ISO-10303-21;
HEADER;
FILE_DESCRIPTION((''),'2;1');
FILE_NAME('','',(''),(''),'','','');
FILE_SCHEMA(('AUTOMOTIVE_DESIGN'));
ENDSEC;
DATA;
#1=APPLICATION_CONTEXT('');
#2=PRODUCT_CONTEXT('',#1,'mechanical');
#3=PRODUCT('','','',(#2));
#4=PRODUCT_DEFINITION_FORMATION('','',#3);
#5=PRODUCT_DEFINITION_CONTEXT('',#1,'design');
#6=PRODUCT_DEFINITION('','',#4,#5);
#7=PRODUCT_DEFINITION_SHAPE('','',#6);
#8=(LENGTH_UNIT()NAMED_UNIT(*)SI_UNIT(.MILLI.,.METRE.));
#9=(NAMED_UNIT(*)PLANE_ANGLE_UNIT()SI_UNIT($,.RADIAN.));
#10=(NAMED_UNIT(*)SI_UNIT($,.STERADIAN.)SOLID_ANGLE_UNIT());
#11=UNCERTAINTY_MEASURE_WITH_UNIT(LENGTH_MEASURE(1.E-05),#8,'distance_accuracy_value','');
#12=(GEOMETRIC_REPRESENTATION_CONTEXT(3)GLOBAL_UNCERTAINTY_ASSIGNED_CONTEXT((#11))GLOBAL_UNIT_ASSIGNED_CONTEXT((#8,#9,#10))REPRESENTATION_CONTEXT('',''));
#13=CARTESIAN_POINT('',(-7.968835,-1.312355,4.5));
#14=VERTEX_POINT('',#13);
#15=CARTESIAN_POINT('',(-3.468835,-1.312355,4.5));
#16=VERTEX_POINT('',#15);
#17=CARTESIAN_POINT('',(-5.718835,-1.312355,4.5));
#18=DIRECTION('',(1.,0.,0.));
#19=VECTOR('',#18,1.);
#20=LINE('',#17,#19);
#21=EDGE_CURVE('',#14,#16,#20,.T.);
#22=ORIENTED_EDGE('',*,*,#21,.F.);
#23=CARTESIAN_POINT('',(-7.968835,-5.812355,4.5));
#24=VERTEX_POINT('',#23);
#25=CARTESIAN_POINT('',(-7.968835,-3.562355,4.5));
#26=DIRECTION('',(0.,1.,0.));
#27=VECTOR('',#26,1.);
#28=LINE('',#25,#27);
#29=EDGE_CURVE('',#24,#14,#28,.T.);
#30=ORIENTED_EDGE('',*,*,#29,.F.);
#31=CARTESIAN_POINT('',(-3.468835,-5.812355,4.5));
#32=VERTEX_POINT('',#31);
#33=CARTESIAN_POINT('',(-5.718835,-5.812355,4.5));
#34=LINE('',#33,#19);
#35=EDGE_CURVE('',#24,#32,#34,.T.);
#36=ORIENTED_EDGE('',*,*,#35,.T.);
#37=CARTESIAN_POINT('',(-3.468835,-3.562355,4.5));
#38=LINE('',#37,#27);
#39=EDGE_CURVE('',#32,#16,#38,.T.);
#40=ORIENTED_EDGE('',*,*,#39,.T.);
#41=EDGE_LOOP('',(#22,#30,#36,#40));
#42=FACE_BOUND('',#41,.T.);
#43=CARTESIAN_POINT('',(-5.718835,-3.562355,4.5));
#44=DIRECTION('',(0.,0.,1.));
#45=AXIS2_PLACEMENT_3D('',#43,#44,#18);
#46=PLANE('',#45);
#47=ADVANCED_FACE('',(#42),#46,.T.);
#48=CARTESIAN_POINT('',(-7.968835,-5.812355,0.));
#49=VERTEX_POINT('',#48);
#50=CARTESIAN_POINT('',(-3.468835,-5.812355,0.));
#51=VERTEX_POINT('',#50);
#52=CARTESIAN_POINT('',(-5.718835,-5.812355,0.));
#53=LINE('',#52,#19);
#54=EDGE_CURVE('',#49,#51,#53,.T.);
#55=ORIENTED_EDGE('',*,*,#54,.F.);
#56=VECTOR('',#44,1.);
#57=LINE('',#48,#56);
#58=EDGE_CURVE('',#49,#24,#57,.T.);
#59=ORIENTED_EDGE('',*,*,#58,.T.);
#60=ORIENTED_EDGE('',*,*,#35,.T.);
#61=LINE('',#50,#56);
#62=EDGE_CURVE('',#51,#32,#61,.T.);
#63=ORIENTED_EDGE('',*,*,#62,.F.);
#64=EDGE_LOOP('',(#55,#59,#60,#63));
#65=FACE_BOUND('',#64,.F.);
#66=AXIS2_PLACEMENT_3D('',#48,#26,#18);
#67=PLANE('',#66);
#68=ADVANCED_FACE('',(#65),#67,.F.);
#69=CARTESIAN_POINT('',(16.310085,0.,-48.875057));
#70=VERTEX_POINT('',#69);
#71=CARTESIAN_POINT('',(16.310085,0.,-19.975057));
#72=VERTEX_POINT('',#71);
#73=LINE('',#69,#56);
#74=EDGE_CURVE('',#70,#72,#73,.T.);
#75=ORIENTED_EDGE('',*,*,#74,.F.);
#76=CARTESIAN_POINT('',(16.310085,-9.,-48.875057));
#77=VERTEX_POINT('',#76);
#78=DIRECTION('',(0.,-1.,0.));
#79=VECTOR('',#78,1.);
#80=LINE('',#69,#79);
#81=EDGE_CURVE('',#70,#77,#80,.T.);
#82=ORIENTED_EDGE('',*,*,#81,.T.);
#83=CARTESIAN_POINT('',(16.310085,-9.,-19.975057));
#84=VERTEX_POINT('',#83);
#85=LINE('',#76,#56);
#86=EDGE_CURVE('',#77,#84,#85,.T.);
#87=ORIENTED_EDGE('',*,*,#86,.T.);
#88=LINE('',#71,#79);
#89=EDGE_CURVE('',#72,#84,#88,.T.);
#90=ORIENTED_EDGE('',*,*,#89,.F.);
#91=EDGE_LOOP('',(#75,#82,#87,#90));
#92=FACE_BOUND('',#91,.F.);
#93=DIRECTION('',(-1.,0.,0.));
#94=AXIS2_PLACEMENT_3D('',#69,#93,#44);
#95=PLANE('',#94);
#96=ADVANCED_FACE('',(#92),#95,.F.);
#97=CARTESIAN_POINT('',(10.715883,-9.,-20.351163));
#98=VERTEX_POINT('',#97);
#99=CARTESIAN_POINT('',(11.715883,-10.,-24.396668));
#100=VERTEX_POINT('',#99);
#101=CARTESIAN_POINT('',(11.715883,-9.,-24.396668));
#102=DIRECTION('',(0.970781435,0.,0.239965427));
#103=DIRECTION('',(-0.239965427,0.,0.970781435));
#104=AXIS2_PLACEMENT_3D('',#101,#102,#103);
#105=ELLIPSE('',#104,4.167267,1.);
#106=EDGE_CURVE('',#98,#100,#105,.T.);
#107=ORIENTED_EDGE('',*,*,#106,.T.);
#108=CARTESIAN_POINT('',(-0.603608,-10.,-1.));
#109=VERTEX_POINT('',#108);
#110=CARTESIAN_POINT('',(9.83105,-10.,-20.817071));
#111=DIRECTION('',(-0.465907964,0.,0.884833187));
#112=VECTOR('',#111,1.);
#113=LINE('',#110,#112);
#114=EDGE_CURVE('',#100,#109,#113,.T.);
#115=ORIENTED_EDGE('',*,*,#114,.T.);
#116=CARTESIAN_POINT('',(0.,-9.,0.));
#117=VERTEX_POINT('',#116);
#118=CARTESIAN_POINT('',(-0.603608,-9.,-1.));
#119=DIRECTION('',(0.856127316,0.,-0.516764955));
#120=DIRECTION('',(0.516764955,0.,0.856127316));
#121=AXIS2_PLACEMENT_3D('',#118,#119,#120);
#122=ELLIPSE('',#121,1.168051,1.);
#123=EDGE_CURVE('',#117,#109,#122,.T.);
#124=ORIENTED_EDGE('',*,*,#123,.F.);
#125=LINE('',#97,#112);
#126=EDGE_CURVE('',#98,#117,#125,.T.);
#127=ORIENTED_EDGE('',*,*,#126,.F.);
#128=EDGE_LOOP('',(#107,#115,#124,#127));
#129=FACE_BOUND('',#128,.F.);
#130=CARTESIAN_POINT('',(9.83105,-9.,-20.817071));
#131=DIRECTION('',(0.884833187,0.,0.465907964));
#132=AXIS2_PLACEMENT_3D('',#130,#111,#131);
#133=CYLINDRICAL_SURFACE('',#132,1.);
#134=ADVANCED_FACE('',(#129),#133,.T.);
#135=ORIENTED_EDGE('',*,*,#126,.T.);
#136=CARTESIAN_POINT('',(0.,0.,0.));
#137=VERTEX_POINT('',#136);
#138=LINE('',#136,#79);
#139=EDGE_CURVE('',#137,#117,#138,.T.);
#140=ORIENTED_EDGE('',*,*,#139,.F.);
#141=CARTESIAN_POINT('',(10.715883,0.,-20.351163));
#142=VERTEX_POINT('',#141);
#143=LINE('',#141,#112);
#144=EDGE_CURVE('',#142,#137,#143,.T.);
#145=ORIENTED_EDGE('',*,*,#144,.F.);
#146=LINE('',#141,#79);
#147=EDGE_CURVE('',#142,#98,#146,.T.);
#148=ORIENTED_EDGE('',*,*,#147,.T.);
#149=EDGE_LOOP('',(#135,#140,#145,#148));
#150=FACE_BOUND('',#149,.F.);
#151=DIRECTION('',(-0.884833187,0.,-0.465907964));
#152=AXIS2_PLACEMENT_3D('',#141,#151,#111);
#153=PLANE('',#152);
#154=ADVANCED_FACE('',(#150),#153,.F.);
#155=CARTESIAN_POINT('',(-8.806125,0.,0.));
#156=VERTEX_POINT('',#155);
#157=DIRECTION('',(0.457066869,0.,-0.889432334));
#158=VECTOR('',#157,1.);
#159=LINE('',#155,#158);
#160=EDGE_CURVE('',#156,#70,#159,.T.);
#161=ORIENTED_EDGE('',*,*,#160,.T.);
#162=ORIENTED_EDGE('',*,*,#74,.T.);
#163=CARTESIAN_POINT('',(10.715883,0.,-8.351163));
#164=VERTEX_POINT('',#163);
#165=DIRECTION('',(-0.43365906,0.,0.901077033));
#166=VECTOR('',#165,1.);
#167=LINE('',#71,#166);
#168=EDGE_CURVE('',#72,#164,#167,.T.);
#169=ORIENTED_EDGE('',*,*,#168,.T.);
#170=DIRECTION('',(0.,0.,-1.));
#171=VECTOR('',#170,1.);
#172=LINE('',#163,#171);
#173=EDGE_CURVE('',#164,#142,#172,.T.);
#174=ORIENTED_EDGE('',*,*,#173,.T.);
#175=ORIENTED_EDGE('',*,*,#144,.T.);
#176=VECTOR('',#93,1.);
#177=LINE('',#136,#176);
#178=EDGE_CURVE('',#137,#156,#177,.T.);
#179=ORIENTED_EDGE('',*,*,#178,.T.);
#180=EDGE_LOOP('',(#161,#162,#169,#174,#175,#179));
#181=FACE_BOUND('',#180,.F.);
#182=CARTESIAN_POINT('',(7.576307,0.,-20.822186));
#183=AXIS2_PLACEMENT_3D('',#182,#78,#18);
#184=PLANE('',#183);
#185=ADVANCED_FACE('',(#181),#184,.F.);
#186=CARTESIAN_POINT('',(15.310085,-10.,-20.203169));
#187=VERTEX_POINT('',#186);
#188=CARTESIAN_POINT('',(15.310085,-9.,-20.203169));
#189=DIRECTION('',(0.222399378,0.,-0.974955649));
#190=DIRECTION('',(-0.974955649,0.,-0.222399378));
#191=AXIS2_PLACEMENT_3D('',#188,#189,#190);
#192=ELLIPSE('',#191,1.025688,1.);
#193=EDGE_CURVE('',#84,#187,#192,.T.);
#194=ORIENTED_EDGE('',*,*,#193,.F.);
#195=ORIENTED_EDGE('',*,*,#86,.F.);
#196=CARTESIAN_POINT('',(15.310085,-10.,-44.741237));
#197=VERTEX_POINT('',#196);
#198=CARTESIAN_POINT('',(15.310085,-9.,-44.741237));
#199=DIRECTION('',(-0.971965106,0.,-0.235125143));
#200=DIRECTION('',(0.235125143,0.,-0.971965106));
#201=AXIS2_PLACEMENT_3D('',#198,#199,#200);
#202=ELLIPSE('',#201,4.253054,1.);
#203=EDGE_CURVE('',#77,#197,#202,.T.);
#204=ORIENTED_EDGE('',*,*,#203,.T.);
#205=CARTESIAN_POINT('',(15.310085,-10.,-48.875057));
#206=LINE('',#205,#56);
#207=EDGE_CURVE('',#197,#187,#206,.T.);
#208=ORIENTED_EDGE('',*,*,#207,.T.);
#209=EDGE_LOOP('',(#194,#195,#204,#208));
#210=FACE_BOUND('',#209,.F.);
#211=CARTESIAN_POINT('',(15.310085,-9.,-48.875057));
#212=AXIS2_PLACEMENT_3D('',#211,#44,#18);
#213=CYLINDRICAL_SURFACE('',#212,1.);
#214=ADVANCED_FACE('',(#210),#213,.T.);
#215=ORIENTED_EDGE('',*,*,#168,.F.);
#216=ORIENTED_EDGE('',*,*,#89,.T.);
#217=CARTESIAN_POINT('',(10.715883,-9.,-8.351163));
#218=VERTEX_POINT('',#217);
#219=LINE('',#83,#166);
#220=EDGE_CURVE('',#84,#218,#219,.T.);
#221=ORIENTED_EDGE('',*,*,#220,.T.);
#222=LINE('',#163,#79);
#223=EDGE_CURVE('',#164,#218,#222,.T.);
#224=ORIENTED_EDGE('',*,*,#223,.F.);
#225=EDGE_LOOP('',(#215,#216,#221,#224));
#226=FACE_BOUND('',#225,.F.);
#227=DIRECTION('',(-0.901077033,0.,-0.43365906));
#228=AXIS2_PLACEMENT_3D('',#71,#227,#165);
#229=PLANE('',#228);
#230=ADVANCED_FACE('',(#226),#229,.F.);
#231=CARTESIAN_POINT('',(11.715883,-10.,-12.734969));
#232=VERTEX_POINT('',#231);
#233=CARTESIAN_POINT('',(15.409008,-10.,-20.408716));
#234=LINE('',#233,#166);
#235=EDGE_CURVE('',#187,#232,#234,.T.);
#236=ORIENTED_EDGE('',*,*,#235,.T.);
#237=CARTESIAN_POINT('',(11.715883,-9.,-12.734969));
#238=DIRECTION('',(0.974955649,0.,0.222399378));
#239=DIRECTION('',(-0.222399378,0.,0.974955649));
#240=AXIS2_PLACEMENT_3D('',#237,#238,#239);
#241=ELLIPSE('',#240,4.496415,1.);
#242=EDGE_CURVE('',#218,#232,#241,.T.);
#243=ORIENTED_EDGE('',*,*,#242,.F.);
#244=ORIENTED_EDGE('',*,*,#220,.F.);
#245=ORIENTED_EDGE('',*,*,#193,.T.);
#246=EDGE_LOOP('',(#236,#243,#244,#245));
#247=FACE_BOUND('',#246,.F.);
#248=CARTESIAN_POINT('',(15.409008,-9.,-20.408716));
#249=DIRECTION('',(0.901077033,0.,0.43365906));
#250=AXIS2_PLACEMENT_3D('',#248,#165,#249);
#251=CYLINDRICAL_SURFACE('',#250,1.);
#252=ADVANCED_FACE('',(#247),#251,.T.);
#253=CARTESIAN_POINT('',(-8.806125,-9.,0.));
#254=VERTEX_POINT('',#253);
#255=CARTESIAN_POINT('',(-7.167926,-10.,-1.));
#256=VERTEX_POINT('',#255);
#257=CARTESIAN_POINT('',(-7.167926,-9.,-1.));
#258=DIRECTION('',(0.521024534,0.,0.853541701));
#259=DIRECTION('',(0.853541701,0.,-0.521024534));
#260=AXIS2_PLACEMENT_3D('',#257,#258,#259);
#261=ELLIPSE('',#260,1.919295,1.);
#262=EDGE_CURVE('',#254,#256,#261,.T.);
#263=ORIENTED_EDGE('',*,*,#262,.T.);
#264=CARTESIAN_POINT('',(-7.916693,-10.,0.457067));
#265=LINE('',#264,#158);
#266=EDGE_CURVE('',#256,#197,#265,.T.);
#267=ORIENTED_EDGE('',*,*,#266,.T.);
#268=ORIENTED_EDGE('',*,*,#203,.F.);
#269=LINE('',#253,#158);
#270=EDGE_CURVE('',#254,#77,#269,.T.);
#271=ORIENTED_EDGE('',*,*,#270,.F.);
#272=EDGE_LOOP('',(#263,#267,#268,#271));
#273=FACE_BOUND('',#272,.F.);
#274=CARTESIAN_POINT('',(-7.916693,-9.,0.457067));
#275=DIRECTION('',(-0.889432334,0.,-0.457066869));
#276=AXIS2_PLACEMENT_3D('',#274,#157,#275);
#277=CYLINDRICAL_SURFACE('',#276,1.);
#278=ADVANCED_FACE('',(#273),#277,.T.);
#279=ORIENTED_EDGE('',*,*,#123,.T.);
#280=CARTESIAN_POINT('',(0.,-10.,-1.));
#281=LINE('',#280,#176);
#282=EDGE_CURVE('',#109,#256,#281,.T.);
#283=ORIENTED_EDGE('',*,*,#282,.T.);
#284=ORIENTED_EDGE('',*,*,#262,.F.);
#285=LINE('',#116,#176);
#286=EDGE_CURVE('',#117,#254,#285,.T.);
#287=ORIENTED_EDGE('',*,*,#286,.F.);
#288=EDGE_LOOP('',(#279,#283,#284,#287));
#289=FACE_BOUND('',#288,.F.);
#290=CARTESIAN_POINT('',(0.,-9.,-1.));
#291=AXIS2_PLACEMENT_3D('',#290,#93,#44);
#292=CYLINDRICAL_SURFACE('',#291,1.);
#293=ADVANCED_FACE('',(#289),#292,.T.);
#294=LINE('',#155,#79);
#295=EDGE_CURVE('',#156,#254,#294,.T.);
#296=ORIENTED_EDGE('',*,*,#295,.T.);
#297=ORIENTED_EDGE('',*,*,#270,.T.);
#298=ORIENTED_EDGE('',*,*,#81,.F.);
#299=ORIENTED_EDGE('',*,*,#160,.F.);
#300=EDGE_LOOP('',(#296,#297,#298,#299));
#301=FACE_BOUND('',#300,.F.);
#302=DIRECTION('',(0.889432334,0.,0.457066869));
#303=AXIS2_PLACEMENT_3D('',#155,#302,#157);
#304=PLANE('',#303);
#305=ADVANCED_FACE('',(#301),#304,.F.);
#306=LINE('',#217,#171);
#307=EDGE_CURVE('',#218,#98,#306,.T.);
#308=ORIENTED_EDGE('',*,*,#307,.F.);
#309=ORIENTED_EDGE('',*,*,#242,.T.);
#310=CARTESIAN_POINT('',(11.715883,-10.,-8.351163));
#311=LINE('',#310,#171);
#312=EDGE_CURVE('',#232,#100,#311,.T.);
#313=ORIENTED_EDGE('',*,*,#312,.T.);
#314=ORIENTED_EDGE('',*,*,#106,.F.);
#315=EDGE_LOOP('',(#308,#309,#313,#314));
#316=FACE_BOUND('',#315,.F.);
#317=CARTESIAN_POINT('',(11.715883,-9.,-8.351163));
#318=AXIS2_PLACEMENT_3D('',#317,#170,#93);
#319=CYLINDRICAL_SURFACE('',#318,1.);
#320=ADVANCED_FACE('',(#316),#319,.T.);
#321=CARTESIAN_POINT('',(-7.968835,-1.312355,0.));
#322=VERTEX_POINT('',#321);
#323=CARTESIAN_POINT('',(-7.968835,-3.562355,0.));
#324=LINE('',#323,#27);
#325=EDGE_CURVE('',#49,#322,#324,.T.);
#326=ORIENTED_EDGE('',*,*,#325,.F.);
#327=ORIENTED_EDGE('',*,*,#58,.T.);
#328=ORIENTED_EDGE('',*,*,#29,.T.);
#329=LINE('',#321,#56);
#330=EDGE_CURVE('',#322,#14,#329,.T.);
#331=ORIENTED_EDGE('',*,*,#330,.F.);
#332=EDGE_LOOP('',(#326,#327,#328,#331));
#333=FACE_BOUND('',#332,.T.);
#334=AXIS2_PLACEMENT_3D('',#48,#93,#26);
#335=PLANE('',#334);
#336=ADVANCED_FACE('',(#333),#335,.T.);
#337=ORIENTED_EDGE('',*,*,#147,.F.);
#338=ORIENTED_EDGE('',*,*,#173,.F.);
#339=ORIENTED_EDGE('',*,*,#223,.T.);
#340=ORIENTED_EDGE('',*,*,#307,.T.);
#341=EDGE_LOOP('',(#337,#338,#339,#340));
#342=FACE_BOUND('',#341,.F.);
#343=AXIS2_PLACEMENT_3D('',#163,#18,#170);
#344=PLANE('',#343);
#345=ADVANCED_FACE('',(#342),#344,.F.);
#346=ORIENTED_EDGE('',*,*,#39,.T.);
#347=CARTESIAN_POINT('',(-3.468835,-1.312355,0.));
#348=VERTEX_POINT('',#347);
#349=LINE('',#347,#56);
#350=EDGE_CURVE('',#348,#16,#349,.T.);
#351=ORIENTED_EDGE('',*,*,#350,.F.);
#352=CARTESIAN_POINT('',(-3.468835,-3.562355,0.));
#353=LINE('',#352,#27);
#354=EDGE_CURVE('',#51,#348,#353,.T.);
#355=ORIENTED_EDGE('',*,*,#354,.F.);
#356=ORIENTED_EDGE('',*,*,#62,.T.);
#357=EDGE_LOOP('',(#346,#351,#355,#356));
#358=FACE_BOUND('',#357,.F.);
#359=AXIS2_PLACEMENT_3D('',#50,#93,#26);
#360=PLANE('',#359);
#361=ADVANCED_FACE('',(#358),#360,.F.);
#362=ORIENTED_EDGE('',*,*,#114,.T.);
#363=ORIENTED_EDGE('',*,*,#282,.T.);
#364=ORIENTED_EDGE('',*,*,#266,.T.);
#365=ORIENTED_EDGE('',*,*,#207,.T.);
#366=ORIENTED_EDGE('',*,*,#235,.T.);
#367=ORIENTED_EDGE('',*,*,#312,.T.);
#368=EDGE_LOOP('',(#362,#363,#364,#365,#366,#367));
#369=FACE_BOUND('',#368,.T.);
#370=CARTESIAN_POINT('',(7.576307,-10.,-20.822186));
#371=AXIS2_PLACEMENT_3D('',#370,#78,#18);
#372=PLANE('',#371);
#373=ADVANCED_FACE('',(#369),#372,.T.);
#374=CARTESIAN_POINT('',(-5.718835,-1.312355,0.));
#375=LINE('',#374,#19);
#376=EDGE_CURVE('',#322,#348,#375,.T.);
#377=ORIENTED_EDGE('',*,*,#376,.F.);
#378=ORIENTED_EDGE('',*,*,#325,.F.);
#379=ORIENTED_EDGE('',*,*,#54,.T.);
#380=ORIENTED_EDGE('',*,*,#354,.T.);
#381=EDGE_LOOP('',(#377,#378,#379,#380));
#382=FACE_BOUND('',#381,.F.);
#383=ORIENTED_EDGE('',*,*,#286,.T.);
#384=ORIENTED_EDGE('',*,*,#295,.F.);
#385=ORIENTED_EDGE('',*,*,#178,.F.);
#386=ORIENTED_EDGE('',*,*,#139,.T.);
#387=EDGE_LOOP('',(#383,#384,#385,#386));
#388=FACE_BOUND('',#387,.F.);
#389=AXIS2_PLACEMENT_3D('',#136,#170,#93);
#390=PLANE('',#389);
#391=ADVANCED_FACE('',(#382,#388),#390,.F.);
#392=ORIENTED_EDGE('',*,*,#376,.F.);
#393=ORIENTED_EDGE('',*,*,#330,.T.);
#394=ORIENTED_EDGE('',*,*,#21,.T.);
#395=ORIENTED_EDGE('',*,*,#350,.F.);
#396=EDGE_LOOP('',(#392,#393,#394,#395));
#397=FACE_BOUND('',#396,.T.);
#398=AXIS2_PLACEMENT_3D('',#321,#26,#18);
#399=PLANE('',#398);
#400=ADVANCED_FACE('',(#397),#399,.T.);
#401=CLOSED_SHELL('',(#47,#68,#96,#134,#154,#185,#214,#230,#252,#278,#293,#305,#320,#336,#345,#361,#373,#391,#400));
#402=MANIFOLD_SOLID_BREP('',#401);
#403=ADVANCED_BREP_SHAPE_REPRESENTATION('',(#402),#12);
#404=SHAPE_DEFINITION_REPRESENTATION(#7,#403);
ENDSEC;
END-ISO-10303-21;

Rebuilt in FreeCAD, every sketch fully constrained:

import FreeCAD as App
import Part
import Sketcher
Q = App.Units.Quantity


def edges_at(feature, points):
    """Names of the edges that pass closest to the given points."""
    edges = feature.Shape.Edges
    near = lambda p: min(range(len(edges)), key=lambda i: edges[i].distToShape(Part.Vertex(*p))[0])
    return sorted({f"Edge{near(p) + 1}" for p in points})


def add_polygon(sketch, points):
    """Adds a closed chain of lines whose ends are joined by coincident constraints."""
    first, n = sketch.GeometryCount, len(points)
    for a, b in zip(points, points[1:] + points[:1]):
        sketch.addGeometry(Part.LineSegment(App.Vector(*a, 0), App.Vector(*b, 0)), False)
    for i in range(n):
        sketch.addConstraint(Sketcher.Constraint("Coincident", first + i, 2, first + (i + 1) % n, 1))

doc = App.newDocument("Part")
params = doc.addObject("Spreadsheet::Sheet", "Params")
for row, (alias, value) in enumerate([
    ("sketch1_height", "12 mm"),
    ("sketch1_length", "23 mm"),
    ("sketch1_height2", "28.9 mm"),
    ("sketch1_length2", "12.9 mm"),
    ("pad1_length", "10 mm"),
    ("fillet_radius", "1 mm"),
    ("sketch2_width", "4.5 mm"),
    ("pad2_length", "4.5 mm"),
], start=1):
    params.set(f"A{row}", alias)
    params.set(f"B{row}", "=" + value)
    params.setAlias(f"B{row}", alias)

body = doc.addObject("PartDesign::Body", "Body")

# Sketch on XZ plane
sketch1 = body.newObject("Sketcher::SketchObject", "Sketch")
sketch1.AttachmentSupport = (doc.getObject("XZ_Plane"), [""])
sketch1.MapMode = "FlatFace"
add_polygon(sketch1, [(11, -20), (0, 0), (-9, 0), (16, -49), (16, -20), (11, -8)])  # lines 0-5
sketch1.addConstraint([
    Sketcher.Constraint("Horizontal", 1),
    Sketcher.Constraint("Vertical", 3),
    Sketcher.Constraint("Vertical", 5),
    Sketcher.Constraint("Coincident", 0, 2, -1, 1),
    Sketcher.Constraint("DistanceY", 5, 2, 5, 1, 12.0),
    Sketcher.Constraint("Distance", 0, 23.0),
    Sketcher.Constraint("DistanceY", 3, 1, 3, 2, 28.9),
    Sketcher.Constraint("Angle", 4, Q("115.699998 deg")),
    Sketcher.Constraint("Distance", 4, 12.9),
    Sketcher.Constraint("DistanceX", 1, 2, 1, 1, 8.806125),
    Sketcher.Constraint("DistanceX", 1, 2, 2, 2, 25.11621),
])
sketch1.setExpression("Constraints[10]", "Params.sketch1_height")
sketch1.setExpression("Constraints[11]", "Params.sketch1_length")
sketch1.setExpression("Constraints[12]", "Params.sketch1_height2")
sketch1.setExpression("Constraints[14]", "Params.sketch1_length2")
pad1 = body.newObject("PartDesign::Pad", "Pad")
pad1.Profile = sketch1
pad1.setExpression("Length", "Params.pad1_length")
doc.recompute()

fillet = body.newObject("PartDesign::Fillet", "Fillet")
fillet.Base = (pad1, edges_at(pad1, [
    (13.513, -10, -14.163),
    (3.752, -10, -24.438),
    (5.358, -10, -10.176),
    (10.716, -10, -14.351),
    (16.31, -10, -34.425),
    (-4.403, -10, 0),
]))
fillet.setExpression("Radius", "Params.fillet_radius")

# Sketch on XY plane
sketch2 = body.newObject("Sketcher::SketchObject", "Sketch001")
sketch2.AttachmentSupport = (doc.getObject("XY_Plane"), [""])
sketch2.MapMode = "FlatFace"
add_polygon(sketch2, [(-8, -1.3), (-8, -5.8), (-3.5, -5.8), (-3.5, -1.3)])  # lines 0-3
sketch2.addConstraint([
    Sketcher.Constraint("Vertical", 0),
    Sketcher.Constraint("Horizontal", 1),
    Sketcher.Constraint("Vertical", 2),
    Sketcher.Constraint("Horizontal", 3),
    Sketcher.Constraint("Equal", 3, 0),
    Sketcher.Constraint("DistanceX", 1, 1, 1, 2, 4.5),
    Sketcher.Constraint("DistanceX", 0, 2, -1, 1, 7.968835),
    Sketcher.Constraint("DistanceY", 0, 2, -1, 1, 5.812355),
])
sketch2.setExpression("Constraints[9]", "Params.sketch2_width")
pad2 = body.newObject("PartDesign::Pad", "Pad001")
pad2.Profile = sketch2
pad2.setExpression("Length", "Params.pad2_length")

doc.recompute()
